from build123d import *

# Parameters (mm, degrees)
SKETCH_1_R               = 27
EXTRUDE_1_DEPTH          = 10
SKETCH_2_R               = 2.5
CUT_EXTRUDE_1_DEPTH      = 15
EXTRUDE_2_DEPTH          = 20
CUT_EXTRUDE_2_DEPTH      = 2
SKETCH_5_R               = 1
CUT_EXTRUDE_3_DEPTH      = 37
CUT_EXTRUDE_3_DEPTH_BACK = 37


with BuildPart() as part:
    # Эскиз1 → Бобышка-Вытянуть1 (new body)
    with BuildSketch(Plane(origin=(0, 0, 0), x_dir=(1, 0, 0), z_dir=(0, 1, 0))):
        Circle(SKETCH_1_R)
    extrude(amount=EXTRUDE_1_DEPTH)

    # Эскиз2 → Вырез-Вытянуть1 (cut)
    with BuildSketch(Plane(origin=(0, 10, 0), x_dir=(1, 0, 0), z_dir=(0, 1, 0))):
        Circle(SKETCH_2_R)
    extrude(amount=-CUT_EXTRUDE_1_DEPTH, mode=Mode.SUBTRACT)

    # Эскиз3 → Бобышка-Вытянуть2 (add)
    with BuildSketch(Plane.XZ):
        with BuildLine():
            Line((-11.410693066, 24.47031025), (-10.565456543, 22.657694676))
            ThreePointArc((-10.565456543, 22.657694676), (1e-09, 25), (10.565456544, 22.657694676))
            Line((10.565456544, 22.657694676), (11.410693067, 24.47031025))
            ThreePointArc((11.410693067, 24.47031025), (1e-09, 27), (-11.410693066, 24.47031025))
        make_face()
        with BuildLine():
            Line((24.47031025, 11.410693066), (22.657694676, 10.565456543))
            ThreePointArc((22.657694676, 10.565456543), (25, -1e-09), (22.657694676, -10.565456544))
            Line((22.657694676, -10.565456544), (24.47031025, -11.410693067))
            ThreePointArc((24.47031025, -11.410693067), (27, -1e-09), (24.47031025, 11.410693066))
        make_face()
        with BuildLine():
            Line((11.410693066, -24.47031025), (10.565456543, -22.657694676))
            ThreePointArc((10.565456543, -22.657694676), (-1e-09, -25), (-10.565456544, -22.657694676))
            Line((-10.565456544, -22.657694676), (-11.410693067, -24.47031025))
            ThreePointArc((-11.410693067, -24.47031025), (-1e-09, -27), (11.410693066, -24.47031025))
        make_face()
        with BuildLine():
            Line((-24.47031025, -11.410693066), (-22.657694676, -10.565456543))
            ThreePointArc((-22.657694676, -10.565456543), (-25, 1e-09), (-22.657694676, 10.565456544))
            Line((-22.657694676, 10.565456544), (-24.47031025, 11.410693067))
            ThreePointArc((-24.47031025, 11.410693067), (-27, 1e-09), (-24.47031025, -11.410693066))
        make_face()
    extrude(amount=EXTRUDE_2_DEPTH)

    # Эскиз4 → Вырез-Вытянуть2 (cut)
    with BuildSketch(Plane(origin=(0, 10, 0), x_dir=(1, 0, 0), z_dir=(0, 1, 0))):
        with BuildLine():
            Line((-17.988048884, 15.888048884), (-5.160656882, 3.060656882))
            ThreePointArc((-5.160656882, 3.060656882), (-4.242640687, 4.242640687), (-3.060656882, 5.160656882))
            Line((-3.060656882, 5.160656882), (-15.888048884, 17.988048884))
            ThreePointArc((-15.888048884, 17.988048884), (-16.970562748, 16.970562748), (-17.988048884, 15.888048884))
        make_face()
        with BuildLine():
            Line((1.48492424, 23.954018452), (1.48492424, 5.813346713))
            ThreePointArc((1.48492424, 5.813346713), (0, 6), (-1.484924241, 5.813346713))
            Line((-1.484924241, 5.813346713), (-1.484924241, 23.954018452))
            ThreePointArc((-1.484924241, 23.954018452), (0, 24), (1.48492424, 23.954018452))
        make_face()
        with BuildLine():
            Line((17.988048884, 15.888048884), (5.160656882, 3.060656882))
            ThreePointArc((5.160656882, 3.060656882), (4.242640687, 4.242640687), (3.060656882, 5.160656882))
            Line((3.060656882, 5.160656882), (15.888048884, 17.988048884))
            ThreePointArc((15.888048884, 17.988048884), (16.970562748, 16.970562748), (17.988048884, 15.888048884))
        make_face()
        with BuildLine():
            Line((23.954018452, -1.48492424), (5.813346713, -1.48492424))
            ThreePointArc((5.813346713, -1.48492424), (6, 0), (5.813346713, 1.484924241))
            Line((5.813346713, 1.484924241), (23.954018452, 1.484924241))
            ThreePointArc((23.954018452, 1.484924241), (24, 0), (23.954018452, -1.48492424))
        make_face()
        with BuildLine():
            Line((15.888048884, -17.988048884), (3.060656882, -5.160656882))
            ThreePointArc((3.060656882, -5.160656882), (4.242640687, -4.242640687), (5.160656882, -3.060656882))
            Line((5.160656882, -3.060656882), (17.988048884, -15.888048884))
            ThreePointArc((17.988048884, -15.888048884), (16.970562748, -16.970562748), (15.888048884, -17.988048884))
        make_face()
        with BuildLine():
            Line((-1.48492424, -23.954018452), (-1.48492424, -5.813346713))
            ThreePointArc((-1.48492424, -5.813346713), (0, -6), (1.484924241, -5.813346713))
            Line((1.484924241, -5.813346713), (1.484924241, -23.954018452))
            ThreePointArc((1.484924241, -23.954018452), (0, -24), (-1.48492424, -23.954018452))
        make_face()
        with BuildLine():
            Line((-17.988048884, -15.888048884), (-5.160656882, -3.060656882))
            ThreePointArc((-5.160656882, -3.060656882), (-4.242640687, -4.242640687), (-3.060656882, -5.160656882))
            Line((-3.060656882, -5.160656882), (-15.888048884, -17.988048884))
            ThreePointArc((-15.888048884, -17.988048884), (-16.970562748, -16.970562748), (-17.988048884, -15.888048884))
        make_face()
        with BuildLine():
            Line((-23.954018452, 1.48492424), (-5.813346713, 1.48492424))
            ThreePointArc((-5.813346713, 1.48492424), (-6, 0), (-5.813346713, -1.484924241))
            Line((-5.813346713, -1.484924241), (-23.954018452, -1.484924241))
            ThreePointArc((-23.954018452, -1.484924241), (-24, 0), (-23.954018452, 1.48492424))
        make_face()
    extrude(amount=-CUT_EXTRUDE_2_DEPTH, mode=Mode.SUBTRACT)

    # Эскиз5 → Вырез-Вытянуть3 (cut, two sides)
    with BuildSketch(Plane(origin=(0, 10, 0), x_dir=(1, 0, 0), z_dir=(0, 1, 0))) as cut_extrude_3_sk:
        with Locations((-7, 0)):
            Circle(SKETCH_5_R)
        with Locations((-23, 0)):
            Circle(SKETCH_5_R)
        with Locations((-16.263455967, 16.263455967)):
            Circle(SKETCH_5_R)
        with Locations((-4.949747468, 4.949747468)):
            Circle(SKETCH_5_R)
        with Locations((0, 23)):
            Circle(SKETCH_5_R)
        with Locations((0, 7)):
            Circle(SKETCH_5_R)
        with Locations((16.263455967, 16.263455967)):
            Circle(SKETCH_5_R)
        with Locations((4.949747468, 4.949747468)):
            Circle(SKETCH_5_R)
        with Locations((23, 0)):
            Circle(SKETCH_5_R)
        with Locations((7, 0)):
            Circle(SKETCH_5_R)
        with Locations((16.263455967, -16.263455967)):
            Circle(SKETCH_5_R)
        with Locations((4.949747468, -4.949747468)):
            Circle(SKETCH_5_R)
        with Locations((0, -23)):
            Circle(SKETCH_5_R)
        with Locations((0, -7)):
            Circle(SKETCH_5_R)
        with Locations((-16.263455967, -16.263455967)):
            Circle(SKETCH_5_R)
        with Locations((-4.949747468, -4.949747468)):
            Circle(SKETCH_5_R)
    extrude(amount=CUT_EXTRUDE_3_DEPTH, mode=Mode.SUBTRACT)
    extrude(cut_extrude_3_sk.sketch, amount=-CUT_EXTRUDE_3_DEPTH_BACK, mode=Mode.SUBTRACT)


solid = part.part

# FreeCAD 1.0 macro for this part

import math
import FreeCAD as App
import Part
import Sketcher
Q = App.Units.Quantity

doc = App.newDocument("Part")
body = doc.addObject("PartDesign::Body", "Body")

sketch1 = body.newObject("Sketcher::SketchObject", "Sketch")
sketch1.AttachmentSupport = (doc.getObject("XZ_Plane"), [""])
sketch1.MapMode = "FlatFace"
sketch1.addGeometry(Part.Circle(App.Vector(0, 0, 0), App.Vector(0, 0, 1), 27), False)
sketch1.addConstraint([
    Sketcher.Constraint("Coincident", 0, 3, -1, 1),
    Sketcher.Constraint("Diameter", 0, 54.0),
])
pad1 = body.newObject("PartDesign::Pad", "Pad")
pad1.Profile = sketch1
pad1.Length = 10
pad1.Reversed = True

sketch2 = body.newObject("Sketcher::SketchObject", "Sketch001")
sketch2.AttachmentSupport = (doc.getObject("XZ_Plane"), [""])
sketch2.MapMode = "FlatFace"
sketch2.AttachmentOffset = App.Placement(App.Vector(0, 0, -10), App.Rotation())
sketch2.addGeometry(Part.Circle(App.Vector(0, 0, 0), App.Vector(0, 0, 1), 2.5), False)
sketch2.addConstraint([
    Sketcher.Constraint("Coincident", 0, 3, -1, 1),
    Sketcher.Constraint("Diameter", 0, 5.0),
])
pocket1 = body.newObject("PartDesign::Pocket", "Pocket")
pocket1.Profile = sketch2
pocket1.Length = 15
pocket1.Reversed = True

sketch3 = body.newObject("Sketcher::SketchObject", "Sketch002")
sketch3.AttachmentSupport = (doc.getObject("XZ_Plane"), [""])
sketch3.MapMode = "FlatFace"
sketch3.addGeometry([
    Part.LineSegment(App.Vector(-11.4, 24.5, 0), App.Vector(-10.6, 22.7, 0)),
    Part.ArcOfCircle(Part.Circle(App.Vector(0, 0, 0), App.Vector(0, 0, 1), 25), math.radians(65), math.radians(115)),
    Part.LineSegment(App.Vector(10.6, 22.7, 0), App.Vector(11.4, 24.5, 0)),
    Part.ArcOfCircle(Part.Circle(App.Vector(0, 0, 0), App.Vector(0, 0, 1), 27), math.radians(65), math.radians(115)),
    Part.LineSegment(App.Vector(24.5, 11.4, 0), App.Vector(22.7, 10.6, 0)),
    Part.ArcOfCircle(Part.Circle(App.Vector(0, 0, 0), App.Vector(0, 0, 1), 25), math.radians(-25), math.radians(25)),
    Part.LineSegment(App.Vector(22.7, -10.6, 0), App.Vector(24.5, -11.4, 0)),
    Part.ArcOfCircle(Part.Circle(App.Vector(0, 0, 0), App.Vector(0, 0, 1), 27), math.radians(-25), math.radians(25)),
    Part.LineSegment(App.Vector(11.4, -24.5, 0), App.Vector(10.6, -22.7, 0)),
    Part.ArcOfCircle(Part.Circle(App.Vector(0, 0, 0), App.Vector(0, 0, 1), 25), math.radians(-115), math.radians(-65)),
    Part.LineSegment(App.Vector(-10.6, -22.7, 0), App.Vector(-11.4, -24.5, 0)),
    Part.ArcOfCircle(Part.Circle(App.Vector(0, 0, 0), App.Vector(0, 0, 1), 27), math.radians(-115), math.radians(-65)),
    Part.LineSegment(App.Vector(-24.5, -11.4, 0), App.Vector(-22.7, -10.6, 0)),
    Part.ArcOfCircle(Part.Circle(App.Vector(0, 0, 0), App.Vector(0, 0, 1), 25), math.radians(155), math.radians(205)),
    Part.LineSegment(App.Vector(-22.7, 10.6, 0), App.Vector(-24.5, 11.4, 0)),
    Part.ArcOfCircle(Part.Circle(App.Vector(0, 0, 0), App.Vector(0, 0, 1), 27), math.radians(155), math.radians(205)),
], False)
sketch3.addConstraint([
    Sketcher.Constraint("Coincident", 0, 2, 1, 2),
    Sketcher.Constraint("Coincident", 1, 1, 2, 1),
    Sketcher.Constraint("Coincident", 2, 2, 3, 1),
    Sketcher.Constraint("Coincident", 3, 2, 0, 1),
    Sketcher.Constraint("Coincident", 4, 2, 5, 2),
    Sketcher.Constraint("Coincident", 5, 1, 6, 1),
    Sketcher.Constraint("Coincident", 6, 2, 7, 1),
    Sketcher.Constraint("Coincident", 7, 2, 4, 1),
    Sketcher.Constraint("Coincident", 8, 2, 9, 2),
    Sketcher.Constraint("Coincident", 9, 1, 10, 1),
    Sketcher.Constraint("Coincident", 10, 2, 11, 1),
    Sketcher.Constraint("Coincident", 11, 2, 8, 1),
    Sketcher.Constraint("Coincident", 12, 2, 13, 2),
    Sketcher.Constraint("Coincident", 13, 1, 14, 1),
    Sketcher.Constraint("Coincident", 14, 2, 15, 1),
    Sketcher.Constraint("Coincident", 15, 2, 12, 1),
    Sketcher.Constraint("Coincident", 1, 3, -1, 1),
    Sketcher.Constraint("Coincident", 3, 3, -1, 1),
    Sketcher.Constraint("Coincident", 5, 3, -1, 1),
    Sketcher.Constraint("Coincident", 7, 3, -1, 1),
    Sketcher.Constraint("Coincident", 9, 3, -1, 1),
    Sketcher.Constraint("Coincident", 11, 3, -1, 1),
    Sketcher.Constraint("Coincident", 13, 3, -1, 1),
    Sketcher.Constraint("Coincident", 15, 3, -1, 1),
    Sketcher.Constraint("Equal", 1, 5),
    Sketcher.Constraint("Equal", 3, 7),
    Sketcher.Constraint("Equal", 5, 9),
    Sketcher.Constraint("Equal", 7, 11),
    Sketcher.Constraint("Equal", 9, 13),
    Sketcher.Constraint("Equal", 11, 15),
    Sketcher.Constraint("Perpendicular", 0, 4),
    Sketcher.Constraint("Perpendicular", 2, 6),
    Sketcher.Constraint("Perpendicular", 4, 8),
    Sketcher.Constraint("Perpendicular", 6, 10),
    Sketcher.Constraint("Perpendicular", 8, 12),
    Sketcher.Constraint("Perpendicular", 10, 14),
    Sketcher.Constraint("Horizontal", 0, 2, 1, 1),
    Sketcher.Constraint("Horizontal", 2, 2, 3, 2),
    Sketcher.Constraint("Horizontal", 8, 2, 9, 1),
    Sketcher.Constraint("Horizontal", 5, 1, 12, 2),
    Sketcher.Constraint("Horizontal", 4, 2, 13, 1),
    Sketcher.Constraint("Vertical", 4, 2, 5, 1),
    Sketcher.Constraint("Vertical", 1, 1, 8, 2),
    Sketcher.Constraint("Radius", 1, 25.0),
    Sketcher.Constraint("Radius", 3, 27.0),
    Sketcher.Constraint("Angle", 0, Q("-65 deg")),
    Sketcher.Constraint("DistanceX", 2, 2, 4, 2, 11.247002),
    Sketcher.Constraint("DistanceY", 7, 2, 1, 1, 11.247002),
])
pad2 = body.newObject("PartDesign::Pad", "Pad001")
pad2.Profile = sketch3
pad2.Length = 20

sketch4 = body.newObject("Sketcher::SketchObject", "Sketch003")
sketch4.AttachmentSupport = (doc.getObject("XZ_Plane"), [""])
sketch4.MapMode = "FlatFace"
sketch4.AttachmentOffset = App.Placement(App.Vector(0, 0, -10), App.Rotation())
sketch4.addGeometry([
    Part.LineSegment(App.Vector(-18, -15.9, 0), App.Vector(-5.2, -3.1, 0)),
    Part.ArcOfCircle(Part.Circle(App.Vector(0, 0, 0), App.Vector(0, 0, 1), 6), math.radians(-149), math.radians(-121)),
    Part.LineSegment(App.Vector(-3.1, -5.2, 0), App.Vector(-15.9, -18, 0)),
    Part.ArcOfCircle(Part.Circle(App.Vector(0, 0, 0), App.Vector(0, 0, 1), 24), math.radians(-138.55), math.radians(-131.45)),
    Part.LineSegment(App.Vector(1.5, -5.8, 0), App.Vector(1.5, -24, 0)),
    Part.ArcOfCircle(Part.Circle(App.Vector(0, 0, 0), App.Vector(0, 0, 1), 24), math.radians(-93.55), math.radians(-86.45)),
    Part.LineSegment(App.Vector(-1.5, -24, 0), App.Vector(-1.5, -5.8, 0)),
    Part.ArcOfCircle(Part.Circle(App.Vector(0, 0, 0), App.Vector(0, 0, 1), 6), math.radians(-104), math.radians(-76)),
    Part.LineSegment(App.Vector(5.2, -3.1, 0), App.Vector(18, -15.9, 0)),
    Part.ArcOfCircle(Part.Circle(App.Vector(0, 0, 0), App.Vector(0, 0, 1), 24), math.radians(-48.55), math.radians(-41.45)),
    Part.LineSegment(App.Vector(15.9, -18, 0), App.Vector(3.1, -5.2, 0)),
    Part.ArcOfCircle(Part.Circle(App.Vector(0, 0, 0), App.Vector(0, 0, 1), 6), math.radians(-59), math.radians(-31)),
    Part.LineSegment(App.Vector(5.8, 1.5, 0), App.Vector(24, 1.5, 0)),
    Part.ArcOfCircle(Part.Circle(App.Vector(0, 0, 0), App.Vector(0, 0, 1), 24), math.radians(-3.55), math.radians(3.55)),
    Part.LineSegment(App.Vector(24, -1.5, 0), App.Vector(5.8, -1.5, 0)),
    Part.ArcOfCircle(Part.Circle(App.Vector(0, 0, 0), App.Vector(0, 0, 1), 6), math.radians(-14), math.radians(14)),
    Part.LineSegment(App.Vector(3.1, 5.2, 0), App.Vector(15.9, 18, 0)),
    Part.ArcOfCircle(Part.Circle(App.Vector(0, 0, 0), App.Vector(0, 0, 1), 24), math.radians(41.45), math.radians(48.55)),
    Part.LineSegment(App.Vector(18, 15.9, 0), App.Vector(5.2, 3.1, 0)),
    Part.ArcOfCircle(Part.Circle(App.Vector(0, 0, 0), App.Vector(0, 0, 1), 6), math.radians(31), math.radians(59)),
    Part.LineSegment(App.Vector(-1.5, 5.8, 0), App.Vector(-1.5, 24, 0)),
    Part.ArcOfCircle(Part.Circle(App.Vector(0, 0, 0), App.Vector(0, 0, 1), 24), math.radians(86.45), math.radians(93.55)),
    Part.LineSegment(App.Vector(1.5, 24, 0), App.Vector(1.5, 5.8, 0)),
    Part.ArcOfCircle(Part.Circle(App.Vector(0, 0, 0), App.Vector(0, 0, 1), 6), math.radians(76), math.radians(104)),
    Part.LineSegment(App.Vector(-5.2, 3.1, 0), App.Vector(-18, 15.9, 0)),
    Part.ArcOfCircle(Part.Circle(App.Vector(0, 0, 0), App.Vector(0, 0, 1), 24), math.radians(131.45), math.radians(138.55)),
    Part.LineSegment(App.Vector(-15.9, 18, 0), App.Vector(-3.1, 5.2, 0)),
    Part.ArcOfCircle(Part.Circle(App.Vector(0, 0, 0), App.Vector(0, 0, 1), 6), math.radians(121), math.radians(149)),
    Part.LineSegment(App.Vector(-5.8, -1.5, 0), App.Vector(-24, -1.5, 0)),
    Part.ArcOfCircle(Part.Circle(App.Vector(0, 0, 0), App.Vector(0, 0, 1), 24), math.radians(176.45), math.radians(183.55)),
    Part.LineSegment(App.Vector(-24, 1.5, 0), App.Vector(-5.8, 1.5, 0)),
    Part.ArcOfCircle(Part.Circle(App.Vector(0, 0, 0), App.Vector(0, 0, 1), 6), math.radians(166), math.radians(194)),
], False)
sketch4.addConstraint([
    Sketcher.Constraint("Coincident", 0, 2, 1, 1),
    Sketcher.Constraint("Coincident", 1, 2, 2, 1),
    Sketcher.Constraint("Coincident", 2, 2, 3, 2),
    Sketcher.Constraint("Coincident", 3, 1, 0, 1),
    Sketcher.Constraint("Coincident", 4, 2, 5, 2),
    Sketcher.Constraint("Coincident", 5, 1, 6, 1),
    Sketcher.Constraint("Coincident", 6, 2, 7, 1),
    Sketcher.Constraint("Coincident", 7, 2, 4, 1),
    Sketcher.Constraint("Coincident", 8, 2, 9, 2),
    Sketcher.Constraint("Coincident", 9, 1, 10, 1),
    Sketcher.Constraint("Coincident", 10, 2, 11, 1),
    Sketcher.Constraint("Coincident", 11, 2, 8, 1),
    Sketcher.Constraint("Coincident", 12, 2, 13, 2),
    Sketcher.Constraint("Coincident", 13, 1, 14, 1),
    Sketcher.Constraint("Coincident", 14, 2, 15, 1),
    Sketcher.Constraint("Coincident", 15, 2, 12, 1),
    Sketcher.Constraint("Coincident", 16, 2, 17, 2),
    Sketcher.Constraint("Coincident", 17, 1, 18, 1),
    Sketcher.Constraint("Coincident", 18, 2, 19, 1),
    Sketcher.Constraint("Coincident", 19, 2, 16, 1),
    Sketcher.Constraint("Coincident", 20, 2, 21, 2),
    Sketcher.Constraint("Coincident", 21, 1, 22, 1),
    Sketcher.Constraint("Coincident", 22, 2, 23, 1),
    Sketcher.Constraint("Coincident", 23, 2, 20, 1),
    Sketcher.Constraint("Coincident", 24, 2, 25, 2),
    Sketcher.Constraint("Coincident", 25, 1, 26, 1),
    Sketcher.Constraint("Coincident", 26, 2, 27, 1),
    Sketcher.Constraint("Coincident", 27, 2, 24, 1),
    Sketcher.Constraint("Coincident", 28, 2, 29, 2),
    Sketcher.Constraint("Coincident", 29, 1, 30, 1),
    Sketcher.Constraint("Coincident", 30, 2, 31, 1),
    Sketcher.Constraint("Coincident", 31, 2, 28, 1),
    Sketcher.Constraint("Vertical", 4),
    Sketcher.Constraint("Vertical", 6),
    Sketcher.Constraint("Horizontal", 12),
    Sketcher.Constraint("Horizontal", 14),
    Sketcher.Constraint("Vertical", 20),
    Sketcher.Constraint("Vertical", 22),
    Sketcher.Constraint("Horizontal", 28),
    Sketcher.Constraint("Horizontal", 30),
    Sketcher.Constraint("Coincident", 1, 3, -1, 1),
    Sketcher.Constraint("Coincident", 3, 3, -1, 1),
    Sketcher.Constraint("Coincident", 5, 3, -1, 1),
    Sketcher.Constraint("Coincident", 7, 3, -1, 1),
    Sketcher.Constraint("Coincident", 9, 3, -1, 1),
    Sketcher.Constraint("Coincident", 11, 3, -1, 1),
    Sketcher.Constraint("Coincident", 13, 3, -1, 1),
    Sketcher.Constraint("Coincident", 15, 3, -1, 1),
    Sketcher.Constraint("Coincident", 17, 3, -1, 1),
    Sketcher.Constraint("Coincident", 19, 3, -1, 1),
    Sketcher.Constraint("Coincident", 21, 3, -1, 1),
    Sketcher.Constraint("Coincident", 23, 3, -1, 1),
    Sketcher.Constraint("Coincident", 25, 3, -1, 1),
    Sketcher.Constraint("Coincident", 27, 3, -1, 1),
    Sketcher.Constraint("Coincident", 29, 3, -1, 1),
    Sketcher.Constraint("Coincident", 31, 3, -1, 1),
    Sketcher.Constraint("Equal", 3, 5),
    Sketcher.Constraint("Equal", 1, 7),
    Sketcher.Constraint("Equal", 5, 9),
    Sketcher.Constraint("Equal", 7, 11),
    Sketcher.Constraint("Equal", 9, 13),
    Sketcher.Constraint("Equal", 11, 15),
    Sketcher.Constraint("Equal", 13, 17),
    Sketcher.Constraint("Equal", 15, 19),
    Sketcher.Constraint("Equal", 17, 21),
    Sketcher.Constraint("Equal", 19, 23),
    Sketcher.Constraint("Equal", 21, 25),
    Sketcher.Constraint("Equal", 23, 27),
    Sketcher.Constraint("Equal", 25, 29),
    Sketcher.Constraint("Equal", 27, 31),
    Sketcher.Constraint("Parallel", 0, 2),
    Sketcher.Constraint("Perpendicular", 2, 8),
    Sketcher.Constraint("Parallel", 8, 10),
    Sketcher.Constraint("Perpendicular", 10, 16),
    Sketcher.Constraint("Parallel", 16, 18),
    Sketcher.Constraint("Perpendicular", 18, 24),
    Sketcher.Constraint("Parallel", 24, 26),
    Sketcher.Constraint("Horizontal", 4, 2, 5, 1),
    Sketcher.Constraint("Horizontal", 3, 1, 8, 2),
    Sketcher.Constraint("Horizontal", 2, 2, 9, 1),
    Sketcher.Constraint("Horizontal", 1, 2, 10, 2),
    Sketcher.Constraint("Horizontal", 20, 2, 21, 1),
    Sketcher.Constraint("Horizontal", 17, 1, 24, 2),
    Sketcher.Constraint("Horizontal", 16, 2, 25, 1),
    Sketcher.Constraint("Horizontal", 14, 2, 28, 2),
    Sketcher.Constraint("Horizontal", 15, 2, 29, 1),
    Sketcher.Constraint("Vertical", 12, 2, 13, 1),
    Sketcher.Constraint("Vertical", 9, 1, 16, 2),
    Sketcher.Constraint("Vertical", 8, 2, 17, 1),
    Sketcher.Constraint("Vertical", 6, 2, 20, 2),
    Sketcher.Constraint("Equal", 30, 4),
    Sketcher.Constraint("Equal", 0, 2),
    Sketcher.Constraint("Radius", 1, 6.0),
    Sketcher.Constraint("Radius", 3, 24.0),
    Sketcher.Constraint("DistanceX", 0, 2, 1, 2, 2.1),
    Sketcher.Constraint("DistanceX", 12, 1, 12, 2, 18.140672),
])
pocket2 = body.newObject("PartDesign::Pocket", "Pocket001")
pocket2.Profile = sketch4
pocket2.Length = 2
pocket2.Reversed = True

sketch5 = body.newObject("Sketcher::SketchObject", "Sketch004")
sketch5.AttachmentSupport = (doc.getObject("XZ_Plane"), [""])
sketch5.MapMode = "FlatFace"
sketch5.AttachmentOffset = App.Placement(App.Vector(0, 0, -10), App.Rotation())
sketch5.addGeometry([
    Part.Circle(App.Vector(-7, 0, 0), App.Vector(0, 0, 1), 1),
    Part.Circle(App.Vector(-23, 0, 0), App.Vector(0, 0, 1), 1),
    Part.Circle(App.Vector(-16.3, -16.3, 0), App.Vector(0, 0, 1), 1),
    Part.Circle(App.Vector(-4.9, -4.9, 0), App.Vector(0, 0, 1), 1),
    Part.Circle(App.Vector(0, -23, 0), App.Vector(0, 0, 1), 1),
    Part.Circle(App.Vector(0, -7, 0), App.Vector(0, 0, 1), 1),
    Part.Circle(App.Vector(16.3, -16.3, 0), App.Vector(0, 0, 1), 1),
    Part.Circle(App.Vector(4.9, -4.9, 0), App.Vector(0, 0, 1), 1),
    Part.Circle(App.Vector(23, 0, 0), App.Vector(0, 0, 1), 1),
    Part.Circle(App.Vector(7, 0, 0), App.Vector(0, 0, 1), 1),
    Part.Circle(App.Vector(16.3, 16.3, 0), App.Vector(0, 0, 1), 1),
    Part.Circle(App.Vector(4.9, 4.9, 0), App.Vector(0, 0, 1), 1),
    Part.Circle(App.Vector(0, 23, 0), App.Vector(0, 0, 1), 1),
    Part.Circle(App.Vector(0, 7, 0), App.Vector(0, 0, 1), 1),
    Part.Circle(App.Vector(-16.3, 16.3, 0), App.Vector(0, 0, 1), 1),
    Part.Circle(App.Vector(-4.9, 4.9, 0), App.Vector(0, 0, 1), 1),
], False)
sketch5.addConstraint([
    Sketcher.Constraint("Equal", 0, 1),
    Sketcher.Constraint("Equal", 1, 2),
    Sketcher.Constraint("Equal", 2, 3),
    Sketcher.Constraint("Equal", 3, 4),
    Sketcher.Constraint("Equal", 4, 5),
    Sketcher.Constraint("Equal", 5, 6),
    Sketcher.Constraint("Equal", 6, 7),
    Sketcher.Constraint("Equal", 7, 8),
    Sketcher.Constraint("Equal", 8, 9),
    Sketcher.Constraint("Equal", 9, 10),
    Sketcher.Constraint("Equal", 10, 11),
    Sketcher.Constraint("Equal", 11, 12),
    Sketcher.Constraint("Equal", 12, 13),
    Sketcher.Constraint("Equal", 13, 14),
    Sketcher.Constraint("Equal", 14, 15),
    Sketcher.Constraint("Symmetric", 1, 3, 8, 3, -1, 1),
    Sketcher.Constraint("Symmetric", 0, 3, 9, 3, -1, 1),
    Sketcher.Constraint("Symmetric", 2, 3, 10, 3, -1, 1),
    Sketcher.Constraint("Symmetric", 3, 3, 11, 3, -1, 1),
    Sketcher.Constraint("Symmetric", 4, 3, 12, 3, -1, 1),
    Sketcher.Constraint("Symmetric", 5, 3, 13, 3, -1, 1),
    Sketcher.Constraint("Symmetric", 6, 3, 14, 3, -1, 1),
    Sketcher.Constraint("Symmetric", 7, 3, 15, 3, -1, 1),
    Sketcher.Constraint("Symmetric", 2, 3, 6, 3, -2),
    Sketcher.Constraint("Symmetric", 3, 3, 7, 3, -2),
    Sketcher.Constraint("PointOnObject", 0, 3, -1),
    Sketcher.Constraint("PointOnObject", 1, 3, -1),
    Sketcher.Constraint("PointOnObject", 4, 3, -2),
    Sketcher.Constraint("PointOnObject", 5, 3, -2),
    Sketcher.Constraint("Diameter", 0, 2.0),
    Sketcher.Constraint("DistanceX", 0, 3, -1, 1, 7.0),
    Sketcher.Constraint("DistanceX", 1, 3, -1, 1, 23.0),
    Sketcher.Constraint("DistanceY", 4, 3, -1, 1, 23.0),
    Sketcher.Constraint("DistanceY", 5, 3, -1, 1, 7.0),
    Sketcher.Constraint("DistanceX", 2, 3, 3, 3, 11.313708),
    Sketcher.Constraint("DistanceY", 2, 3, 3, 3, 11.313708),
    Sketcher.Constraint("DistanceX", 2, 3, 6, 3, 32.526912),
    Sketcher.Constraint("DistanceY", 2, 3, -1, 1, 16.263456),
])
pocket3 = body.newObject("PartDesign::Pocket", "Pocket002")
pocket3.Profile = sketch5
pocket3.Type = "ThroughAll"
pocket3.Midplane = True

doc.recompute()
